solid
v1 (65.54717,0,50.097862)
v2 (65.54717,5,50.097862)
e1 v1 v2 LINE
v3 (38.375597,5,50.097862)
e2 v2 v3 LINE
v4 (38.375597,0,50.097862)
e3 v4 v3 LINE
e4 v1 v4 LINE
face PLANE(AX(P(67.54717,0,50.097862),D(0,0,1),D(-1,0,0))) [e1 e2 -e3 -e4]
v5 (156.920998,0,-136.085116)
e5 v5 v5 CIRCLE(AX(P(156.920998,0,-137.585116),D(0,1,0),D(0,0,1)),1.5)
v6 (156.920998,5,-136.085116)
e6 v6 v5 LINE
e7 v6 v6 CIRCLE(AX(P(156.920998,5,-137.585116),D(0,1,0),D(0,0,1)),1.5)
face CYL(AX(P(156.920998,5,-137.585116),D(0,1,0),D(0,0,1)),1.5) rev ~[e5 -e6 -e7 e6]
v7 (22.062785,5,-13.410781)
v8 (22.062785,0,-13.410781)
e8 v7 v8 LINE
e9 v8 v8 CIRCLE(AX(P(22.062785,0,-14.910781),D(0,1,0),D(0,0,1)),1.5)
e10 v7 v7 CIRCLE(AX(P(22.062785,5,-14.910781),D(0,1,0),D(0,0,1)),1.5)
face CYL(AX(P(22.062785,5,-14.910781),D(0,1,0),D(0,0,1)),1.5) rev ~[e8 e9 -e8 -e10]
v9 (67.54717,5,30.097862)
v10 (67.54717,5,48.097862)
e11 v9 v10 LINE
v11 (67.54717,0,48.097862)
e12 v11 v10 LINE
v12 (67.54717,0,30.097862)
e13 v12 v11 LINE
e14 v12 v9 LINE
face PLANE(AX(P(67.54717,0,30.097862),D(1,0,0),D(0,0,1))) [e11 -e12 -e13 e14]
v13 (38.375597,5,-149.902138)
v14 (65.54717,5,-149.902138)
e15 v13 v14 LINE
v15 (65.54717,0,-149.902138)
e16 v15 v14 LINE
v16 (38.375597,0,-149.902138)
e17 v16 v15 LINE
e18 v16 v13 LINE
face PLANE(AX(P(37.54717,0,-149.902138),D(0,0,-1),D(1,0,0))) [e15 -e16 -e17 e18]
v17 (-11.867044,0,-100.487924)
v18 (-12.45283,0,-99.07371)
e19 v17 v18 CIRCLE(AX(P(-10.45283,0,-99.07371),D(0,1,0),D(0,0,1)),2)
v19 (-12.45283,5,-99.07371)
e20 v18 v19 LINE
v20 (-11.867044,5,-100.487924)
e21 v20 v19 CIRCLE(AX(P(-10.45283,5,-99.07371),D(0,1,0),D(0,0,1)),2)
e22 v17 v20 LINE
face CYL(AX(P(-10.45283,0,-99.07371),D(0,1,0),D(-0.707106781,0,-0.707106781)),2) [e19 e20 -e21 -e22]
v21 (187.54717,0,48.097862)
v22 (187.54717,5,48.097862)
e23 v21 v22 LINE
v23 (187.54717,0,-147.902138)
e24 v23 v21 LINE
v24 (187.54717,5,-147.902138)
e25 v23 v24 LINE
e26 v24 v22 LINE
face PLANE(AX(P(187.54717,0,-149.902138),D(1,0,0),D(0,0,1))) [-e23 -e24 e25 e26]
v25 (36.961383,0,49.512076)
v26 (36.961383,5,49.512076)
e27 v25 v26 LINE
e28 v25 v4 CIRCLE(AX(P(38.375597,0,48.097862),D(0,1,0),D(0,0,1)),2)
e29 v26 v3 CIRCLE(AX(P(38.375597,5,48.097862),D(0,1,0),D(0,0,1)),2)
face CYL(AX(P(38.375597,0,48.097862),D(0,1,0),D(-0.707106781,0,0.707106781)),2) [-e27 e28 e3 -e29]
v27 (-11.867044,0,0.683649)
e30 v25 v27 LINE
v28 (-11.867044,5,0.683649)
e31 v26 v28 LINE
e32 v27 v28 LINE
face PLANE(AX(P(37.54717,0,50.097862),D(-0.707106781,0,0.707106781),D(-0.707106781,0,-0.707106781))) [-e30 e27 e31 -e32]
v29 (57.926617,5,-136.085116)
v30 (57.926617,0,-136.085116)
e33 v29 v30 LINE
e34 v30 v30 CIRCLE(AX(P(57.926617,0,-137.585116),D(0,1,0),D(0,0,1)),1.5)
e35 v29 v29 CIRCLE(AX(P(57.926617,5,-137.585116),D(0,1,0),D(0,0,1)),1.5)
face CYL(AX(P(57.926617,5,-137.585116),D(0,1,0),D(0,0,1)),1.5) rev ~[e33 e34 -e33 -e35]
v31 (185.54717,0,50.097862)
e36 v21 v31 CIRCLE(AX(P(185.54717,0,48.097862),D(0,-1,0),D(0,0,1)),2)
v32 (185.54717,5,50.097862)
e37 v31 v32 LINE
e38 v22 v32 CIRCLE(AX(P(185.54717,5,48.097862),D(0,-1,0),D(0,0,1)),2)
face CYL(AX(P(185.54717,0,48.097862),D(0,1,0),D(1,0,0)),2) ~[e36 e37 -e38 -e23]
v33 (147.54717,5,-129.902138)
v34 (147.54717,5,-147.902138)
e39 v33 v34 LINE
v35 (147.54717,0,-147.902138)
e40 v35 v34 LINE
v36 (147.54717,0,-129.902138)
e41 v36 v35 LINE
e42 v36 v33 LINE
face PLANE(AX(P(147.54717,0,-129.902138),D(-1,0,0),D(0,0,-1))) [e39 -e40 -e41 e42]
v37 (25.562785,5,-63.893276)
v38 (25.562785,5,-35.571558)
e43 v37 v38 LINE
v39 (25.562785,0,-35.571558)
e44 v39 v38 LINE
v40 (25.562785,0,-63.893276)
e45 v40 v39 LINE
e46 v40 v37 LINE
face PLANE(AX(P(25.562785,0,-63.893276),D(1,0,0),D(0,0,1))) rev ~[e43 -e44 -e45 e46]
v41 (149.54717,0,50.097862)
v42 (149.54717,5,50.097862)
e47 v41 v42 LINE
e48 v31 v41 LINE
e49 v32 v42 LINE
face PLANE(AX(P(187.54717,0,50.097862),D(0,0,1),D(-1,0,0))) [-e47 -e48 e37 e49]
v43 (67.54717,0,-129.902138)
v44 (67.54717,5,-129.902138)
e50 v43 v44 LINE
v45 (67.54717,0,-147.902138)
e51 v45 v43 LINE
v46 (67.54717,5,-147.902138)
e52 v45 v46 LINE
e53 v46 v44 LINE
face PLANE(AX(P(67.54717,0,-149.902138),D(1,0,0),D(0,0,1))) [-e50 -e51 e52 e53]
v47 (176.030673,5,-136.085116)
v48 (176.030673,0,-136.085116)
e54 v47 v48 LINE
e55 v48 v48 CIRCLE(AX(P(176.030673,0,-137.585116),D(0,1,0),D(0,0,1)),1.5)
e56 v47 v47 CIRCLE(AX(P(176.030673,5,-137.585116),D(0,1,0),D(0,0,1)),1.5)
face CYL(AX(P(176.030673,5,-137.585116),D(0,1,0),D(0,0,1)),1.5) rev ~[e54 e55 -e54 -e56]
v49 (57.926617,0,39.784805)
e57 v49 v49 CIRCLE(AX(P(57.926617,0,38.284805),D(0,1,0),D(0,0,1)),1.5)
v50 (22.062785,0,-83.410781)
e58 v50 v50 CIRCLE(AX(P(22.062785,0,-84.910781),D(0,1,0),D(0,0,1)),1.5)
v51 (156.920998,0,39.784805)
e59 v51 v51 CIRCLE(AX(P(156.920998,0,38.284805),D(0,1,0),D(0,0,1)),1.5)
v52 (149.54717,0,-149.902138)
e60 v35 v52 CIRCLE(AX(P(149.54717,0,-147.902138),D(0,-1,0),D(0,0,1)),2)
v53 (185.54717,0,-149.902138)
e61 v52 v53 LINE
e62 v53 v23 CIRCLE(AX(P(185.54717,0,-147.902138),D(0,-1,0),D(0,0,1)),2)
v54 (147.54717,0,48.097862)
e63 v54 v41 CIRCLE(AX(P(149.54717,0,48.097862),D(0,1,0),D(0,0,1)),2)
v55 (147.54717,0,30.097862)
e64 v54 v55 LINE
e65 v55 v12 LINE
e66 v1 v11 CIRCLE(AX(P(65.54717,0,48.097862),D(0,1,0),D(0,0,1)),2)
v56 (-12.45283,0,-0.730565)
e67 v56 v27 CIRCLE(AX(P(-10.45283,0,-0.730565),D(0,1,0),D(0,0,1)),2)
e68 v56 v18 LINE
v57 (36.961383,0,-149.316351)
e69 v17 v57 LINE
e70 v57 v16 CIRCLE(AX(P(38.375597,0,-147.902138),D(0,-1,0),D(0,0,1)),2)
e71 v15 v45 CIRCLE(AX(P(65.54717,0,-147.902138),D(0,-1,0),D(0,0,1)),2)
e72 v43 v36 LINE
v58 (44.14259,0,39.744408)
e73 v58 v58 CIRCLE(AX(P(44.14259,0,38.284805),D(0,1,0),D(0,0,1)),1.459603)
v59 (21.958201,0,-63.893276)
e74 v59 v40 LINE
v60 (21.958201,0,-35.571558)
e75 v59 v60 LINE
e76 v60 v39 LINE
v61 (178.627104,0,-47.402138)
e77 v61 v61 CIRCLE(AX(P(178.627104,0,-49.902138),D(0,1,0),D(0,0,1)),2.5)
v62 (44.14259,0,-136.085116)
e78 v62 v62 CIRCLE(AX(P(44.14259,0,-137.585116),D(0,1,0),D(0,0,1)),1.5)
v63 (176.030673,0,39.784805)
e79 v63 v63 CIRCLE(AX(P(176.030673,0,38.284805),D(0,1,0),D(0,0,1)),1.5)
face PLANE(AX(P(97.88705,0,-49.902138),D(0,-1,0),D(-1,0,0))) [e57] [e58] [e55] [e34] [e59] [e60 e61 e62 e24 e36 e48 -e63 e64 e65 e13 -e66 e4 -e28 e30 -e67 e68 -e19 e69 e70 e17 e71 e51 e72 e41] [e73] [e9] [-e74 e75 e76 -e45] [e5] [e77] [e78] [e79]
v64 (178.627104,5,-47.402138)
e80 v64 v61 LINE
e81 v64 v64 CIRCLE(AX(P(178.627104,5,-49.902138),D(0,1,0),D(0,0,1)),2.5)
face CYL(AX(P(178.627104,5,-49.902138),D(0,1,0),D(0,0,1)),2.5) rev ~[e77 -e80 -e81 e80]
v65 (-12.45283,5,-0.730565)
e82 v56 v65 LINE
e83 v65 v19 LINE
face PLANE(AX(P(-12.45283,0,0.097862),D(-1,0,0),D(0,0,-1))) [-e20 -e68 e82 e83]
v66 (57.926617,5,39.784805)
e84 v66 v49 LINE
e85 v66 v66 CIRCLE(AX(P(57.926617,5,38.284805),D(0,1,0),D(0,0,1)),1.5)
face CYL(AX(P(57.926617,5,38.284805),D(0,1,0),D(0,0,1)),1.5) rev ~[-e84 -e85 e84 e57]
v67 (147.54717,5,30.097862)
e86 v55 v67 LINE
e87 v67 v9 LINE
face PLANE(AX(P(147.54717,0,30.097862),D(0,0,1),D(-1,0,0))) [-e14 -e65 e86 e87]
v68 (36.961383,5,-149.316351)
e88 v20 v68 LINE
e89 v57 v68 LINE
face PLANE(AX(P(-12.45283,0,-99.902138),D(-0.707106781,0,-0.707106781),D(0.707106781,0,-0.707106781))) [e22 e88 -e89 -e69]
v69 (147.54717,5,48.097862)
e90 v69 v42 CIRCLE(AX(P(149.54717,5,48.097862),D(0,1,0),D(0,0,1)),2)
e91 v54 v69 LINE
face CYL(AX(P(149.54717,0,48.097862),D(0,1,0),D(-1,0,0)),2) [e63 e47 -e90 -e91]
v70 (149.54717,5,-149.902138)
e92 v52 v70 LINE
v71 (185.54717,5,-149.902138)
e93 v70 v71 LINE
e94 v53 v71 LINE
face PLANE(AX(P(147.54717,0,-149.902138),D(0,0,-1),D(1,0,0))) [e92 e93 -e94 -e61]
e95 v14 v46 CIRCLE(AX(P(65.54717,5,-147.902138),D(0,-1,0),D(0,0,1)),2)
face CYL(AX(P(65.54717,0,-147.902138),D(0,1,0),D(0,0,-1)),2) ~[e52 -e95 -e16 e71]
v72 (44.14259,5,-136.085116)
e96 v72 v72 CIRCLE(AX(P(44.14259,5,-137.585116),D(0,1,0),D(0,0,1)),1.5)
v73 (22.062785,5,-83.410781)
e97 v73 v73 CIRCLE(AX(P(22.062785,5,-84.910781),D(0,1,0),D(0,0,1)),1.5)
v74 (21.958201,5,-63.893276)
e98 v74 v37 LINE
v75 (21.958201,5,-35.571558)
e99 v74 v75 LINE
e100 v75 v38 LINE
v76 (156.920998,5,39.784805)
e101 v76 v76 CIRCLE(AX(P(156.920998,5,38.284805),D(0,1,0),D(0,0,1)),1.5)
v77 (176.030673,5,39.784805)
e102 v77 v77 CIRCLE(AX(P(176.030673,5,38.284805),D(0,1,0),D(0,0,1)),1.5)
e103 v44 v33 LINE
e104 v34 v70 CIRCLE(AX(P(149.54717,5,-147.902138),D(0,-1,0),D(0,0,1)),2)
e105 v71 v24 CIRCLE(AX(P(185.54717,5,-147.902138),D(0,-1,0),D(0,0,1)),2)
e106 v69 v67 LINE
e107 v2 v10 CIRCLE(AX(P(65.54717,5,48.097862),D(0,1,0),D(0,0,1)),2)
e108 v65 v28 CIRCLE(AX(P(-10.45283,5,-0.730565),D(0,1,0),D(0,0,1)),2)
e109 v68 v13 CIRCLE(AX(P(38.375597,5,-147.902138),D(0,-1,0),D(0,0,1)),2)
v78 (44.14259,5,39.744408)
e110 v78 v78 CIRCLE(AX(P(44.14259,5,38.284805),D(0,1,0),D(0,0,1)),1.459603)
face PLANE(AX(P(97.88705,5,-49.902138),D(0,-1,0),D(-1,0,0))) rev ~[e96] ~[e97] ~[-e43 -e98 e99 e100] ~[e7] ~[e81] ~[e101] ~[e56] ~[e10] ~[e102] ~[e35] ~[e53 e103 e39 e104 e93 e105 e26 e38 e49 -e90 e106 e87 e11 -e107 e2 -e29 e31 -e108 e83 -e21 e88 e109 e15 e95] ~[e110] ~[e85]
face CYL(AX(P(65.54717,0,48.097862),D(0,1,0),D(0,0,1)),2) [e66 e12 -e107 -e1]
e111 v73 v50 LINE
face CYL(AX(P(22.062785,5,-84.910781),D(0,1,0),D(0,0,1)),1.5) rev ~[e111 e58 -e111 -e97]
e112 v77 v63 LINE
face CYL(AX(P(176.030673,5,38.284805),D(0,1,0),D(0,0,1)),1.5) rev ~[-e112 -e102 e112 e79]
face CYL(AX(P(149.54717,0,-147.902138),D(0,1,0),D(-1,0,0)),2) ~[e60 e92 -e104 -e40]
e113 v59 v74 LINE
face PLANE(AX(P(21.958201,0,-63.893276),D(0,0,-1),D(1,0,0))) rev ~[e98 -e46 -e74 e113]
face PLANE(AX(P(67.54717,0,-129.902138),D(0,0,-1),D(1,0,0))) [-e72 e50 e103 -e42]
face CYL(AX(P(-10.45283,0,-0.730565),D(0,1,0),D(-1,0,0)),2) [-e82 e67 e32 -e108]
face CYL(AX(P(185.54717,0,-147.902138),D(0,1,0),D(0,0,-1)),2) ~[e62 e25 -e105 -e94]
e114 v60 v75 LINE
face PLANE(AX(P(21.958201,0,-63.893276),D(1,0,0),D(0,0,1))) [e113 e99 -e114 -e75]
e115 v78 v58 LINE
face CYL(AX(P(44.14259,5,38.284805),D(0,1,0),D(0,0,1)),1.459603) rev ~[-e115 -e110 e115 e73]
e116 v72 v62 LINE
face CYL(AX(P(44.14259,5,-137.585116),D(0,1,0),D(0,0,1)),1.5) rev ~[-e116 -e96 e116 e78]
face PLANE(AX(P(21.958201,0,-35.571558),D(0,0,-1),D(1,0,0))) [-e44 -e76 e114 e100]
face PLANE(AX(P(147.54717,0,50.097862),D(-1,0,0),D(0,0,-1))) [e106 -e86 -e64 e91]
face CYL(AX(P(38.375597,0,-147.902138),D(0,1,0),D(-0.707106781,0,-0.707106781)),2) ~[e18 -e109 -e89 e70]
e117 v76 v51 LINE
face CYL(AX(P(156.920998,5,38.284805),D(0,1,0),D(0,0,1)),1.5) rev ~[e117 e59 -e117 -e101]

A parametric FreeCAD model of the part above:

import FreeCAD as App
import Part
import Sketcher
from FreeCAD import Vector
Q = App.Units.Quantity


def edges_at(feature, points):
    """Names of the edges that pass closest to the given points."""
    edges = feature.Shape.Edges
    near = lambda p: min(range(len(edges)), key=lambda i: edges[i].distToShape(Part.Vertex(*p))[0])
    return sorted({f"Edge{near(p) + 1}" for p in points})

doc = App.newDocument("Part")
body = doc.addObject("PartDesign::Body", "Body")

sketch1 = doc.addObject("Sketcher::SketchObject", "Sketch")
body.addObject(sketch1)
sketch1.AttachmentSupport = (doc.XZ_Plane, [""])
sketch1.MapMode = "FlatFace"
sketch1.addGeometry([
    Part.LineSegment(Vector(37.54717, -149.902138, 0), Vector(-12.45283, -99.902138, 0)),
    Part.LineSegment(Vector(-12.45283, -99.902138, 0), Vector(-12.45283, 0.097862, 0)),
    Part.LineSegment(Vector(-12.45283, 0.097862, 0), Vector(37.54717, 50.097862, 0)),
    Part.LineSegment(Vector(37.54717, 50.097862, 0), Vector(67.54717, 50.097862, 0)),
    Part.LineSegment(Vector(67.54717, 50.097862, 0), Vector(67.54717, 30.097862, 0)),
    Part.LineSegment(Vector(67.54717, 30.097862, 0), Vector(147.54717, 30.097862, 0)),
    Part.LineSegment(Vector(147.54717, 30.097862, 0), Vector(147.54717, 50.097862, 0)),
    Part.LineSegment(Vector(147.54717, 50.097862, 0), Vector(187.54717, 50.097862, 0)),
    Part.LineSegment(Vector(187.54717, 50.097862, 0), Vector(187.54717, -149.902138, 0)),
    Part.LineSegment(Vector(187.54717, -149.902138, 0), Vector(147.54717, -149.902138, 0)),
    Part.LineSegment(Vector(147.54717, -149.902138, 0), Vector(147.54717, -129.902138, 0)),
    Part.LineSegment(Vector(147.54717, -129.902138, 0), Vector(67.54717, -129.902138, 0)),
    Part.LineSegment(Vector(67.54717, -129.902138, 0), Vector(67.54717, -149.902138, 0)),
    Part.LineSegment(Vector(67.54717, -149.902138, 0), Vector(37.54717, -149.902138, 0)),
], False)
sketch1.addConstraint([
    Sketcher.Constraint("Coincident", 0, 2, 1, 1),
    Sketcher.Constraint("Coincident", 1, 2, 2, 1),
    Sketcher.Constraint("Coincident", 2, 2, 3, 1),
    Sketcher.Constraint("Coincident", 3, 2, 4, 1),
    Sketcher.Constraint("Coincident", 4, 2, 5, 1),
    Sketcher.Constraint("Coincident", 5, 2, 6, 1),
    Sketcher.Constraint("Coincident", 6, 2, 7, 1),
    Sketcher.Constraint("Coincident", 7, 2, 8, 1),
    Sketcher.Constraint("Coincident", 8, 2, 9, 1),
    Sketcher.Constraint("Coincident", 9, 2, 10, 1),
    Sketcher.Constraint("Coincident", 10, 2, 11, 1),
    Sketcher.Constraint("Coincident", 11, 2, 12, 1),
    Sketcher.Constraint("Coincident", 12, 2, 13, 1),
    Sketcher.Constraint("Coincident", 13, 2, 0, 1),
    Sketcher.Constraint("Vertical", 1),
    Sketcher.Constraint("Horizontal", 3),
    Sketcher.Constraint("Vertical", 4),
    Sketcher.Constraint("Horizontal", 5),
    Sketcher.Constraint("Vertical", 6),
    Sketcher.Constraint("Horizontal", 7),
    Sketcher.Constraint("Vertical", 8),
    Sketcher.Constraint("Horizontal", 9),
    Sketcher.Constraint("Vertical", 10),
    Sketcher.Constraint("Horizontal", 11),
    Sketcher.Constraint("Vertical", 12),
    Sketcher.Constraint("Horizontal", 13),
    Sketcher.Constraint("Perpendicular", 0, 2),
    Sketcher.Constraint("Horizontal", 3, 2, 6, 2),
    Sketcher.Constraint("Horizontal", 9, 2, 12, 2),
    Sketcher.Constraint("Vertical", 6, 2, 9, 2),
    Sketcher.Constraint("Vertical", 4, 2, 11, 2),
    Sketcher.Constraint("Vertical", 2, 2, 13, 2),
    Sketcher.Constraint("Equal", 6, 10),
    Sketcher.Constraint("Equal", 0, 2),
    Sketcher.Constraint("DistanceX", 3, 1, 3, 2, Q("30 mm")),
    Sketcher.Constraint("DistanceX", 5, 1, 5, 2, Q("80 mm")),
    Sketcher.Constraint("DistanceX", 7, 1, 7, 2, Q("40 mm")),
    Sketcher.Constraint("DistanceY", 1, 1, 1, 2, Q("100 mm")),
    Sketcher.Constraint("DistanceY", 4, 2, 4, 1, Q("20 mm")),
    Sketcher.Constraint("DistanceY", 8, 2, 8, 1, Q("200 mm")),
    Sketcher.Constraint("DistanceX", 0, 2, -1, 1, Q("12.45283 mm")),
    Sketcher.Constraint("DistanceY", 0, 2, -1, 1, Q("99.902138 mm")),
])
pad1 = doc.addObject("PartDesign::Pad", "Pad")
body.addObject(pad1)
pad1.Profile = sketch1
pad1.Length = 5
pad1.Reversed = True

sketch2 = doc.addObject("Sketcher::SketchObject", "Sketch001")
body.addObject(sketch2)
sketch2.AttachmentSupport = (doc.XZ_Plane, [""])
sketch2.MapMode = "FlatFace"
sketch2.AttachmentOffset = App.Placement(Vector(0, 0, -5), App.Rotation())
sketch2.addGeometry(Part.Circle(Vector(178.627104, -49.902138, 0), Vector(0, 0, 1), 2.5), False)
sketch2.addConstraint([
    Sketcher.Constraint("Diameter", 0, Q("5 mm")),
    Sketcher.Constraint("DistanceX", -1, 1, 0, 3, Q("178.627104 mm")),
    Sketcher.Constraint("DistanceY", 0, 3, -1, 1, Q("49.902138 mm")),
])
pocket1 = doc.addObject("PartDesign::Pocket", "Pocket")
body.addObject(pocket1)
pocket1.Profile = sketch2
pocket1.Length = 10
pocket1.Reversed = True
doc.recompute()

fillet = doc.addObject("PartDesign::Fillet", "Fillet")
body.addObject(fillet)
fillet.Base = (pocket1, edges_at(pocket1, [
    (-12.453, 2.5, -99.902),
    (37.547, 2.5, -149.902),
    (67.547, 2.5, -149.902),
    (147.547, 2.5, -149.902),
    (187.547, 2.5, -149.902),
    (187.547, 2.5, 50.098),
    (147.547, 2.5, 50.098),
    (67.547, 2.5, 50.098),
    (37.547, 2.5, 50.098),
    (-12.453, 2.5, 0.098),
]))
fillet.Radius = 2

sketch3 = doc.addObject("Sketcher::SketchObject", "Sketch002")
body.addObject(sketch3)
sketch3.AttachmentSupport = (doc.XZ_Plane, [""])
sketch3.MapMode = "FlatFace"
sketch3.AttachmentOffset = App.Placement(Vector(0, 0, -5), App.Rotation())
sketch3.addGeometry([
    Part.Circle(Vector(22.062785, -14.910781, 0), Vector(0, 0, 1), 1.5),
    Part.Circle(Vector(22.062785, -84.910781, 0), Vector(0, 0, 1), 1.5),
], False)
sketch3.addConstraint([
    Sketcher.Constraint("Equal", 0, 1),
    Sketcher.Constraint("Vertical", 0, 3, 1, 3),
    Sketcher.Constraint("Diameter", 0, Q("3 mm")),
    Sketcher.Constraint("DistanceY", 1, 3, 0, 3, Q("70 mm")),
    Sketcher.Constraint("DistanceY", 0, 3, -1, 1, Q("14.910781 mm")),
    Sketcher.Constraint("DistanceX", -1, 1, 0, 3, Q("22.062785 mm")),
])
pocket2 = doc.addObject("PartDesign::Pocket", "Pocket001")
body.addObject(pocket2)
pocket2.Profile = sketch3
pocket2.Length = 10
pocket2.Reversed = True

sketch4 = doc.addObject("Sketcher::SketchObject", "Sketch003")
body.addObject(sketch4)
sketch4.AttachmentSupport = (doc.XZ_Plane, [""])
sketch4.MapMode = "FlatFace"
sketch4.addGeometry([
    Part.LineSegment(Vector(21.958201, -35.571558, 0), Vector(21.958201, -63.893276, 0)),
    Part.LineSegment(Vector(21.958201, -63.893276, 0), Vector(25.562785, -63.893276, 0)),
    Part.LineSegment(Vector(25.562785, -63.893276, 0), Vector(25.562785, -35.571558, 0)),
    Part.LineSegment(Vector(25.562785, -35.571558, 0), Vector(21.958201, -35.571558, 0)),
], False)
sketch4.addConstraint([
    Sketcher.Constraint("Coincident", 0, 2, 1, 1),
    Sketcher.Constraint("Coincident", 1, 2, 2, 1),
    Sketcher.Constraint("Coincident", 2, 2, 3, 1),
    Sketcher.Constraint("Coincident", 3, 2, 0, 1),
    Sketcher.Constraint("Vertical", 0),
    Sketcher.Constraint("Horizontal", 1),
    Sketcher.Constraint("Vertical", 2),
    Sketcher.Constraint("Horizontal", 3),
    Sketcher.Constraint("DistanceX", -1, 1, 0, 2, Q("21.958201 mm")),
    Sketcher.Constraint("DistanceX", 1, 1, 1, 2, Q("3.604585 mm")),
    Sketcher.Constraint("DistanceY", 0, 2, 0, 1, Q("28.321718 mm")),
    Sketcher.Constraint("DistanceY", 2, 2, -1, 1, Q("35.571558 mm")),
])
pocket3 = doc.addObject("PartDesign::Pocket", "Pocket002")
body.addObject(pocket3)
pocket3.Profile = sketch4
pocket3.Length = 10

sketch5 = doc.addObject("Sketcher::SketchObject", "Sketch004")
body.addObject(sketch5)
sketch5.AttachmentSupport = (doc.XZ_Plane, [""])
sketch5.MapMode = "FlatFace"
sketch5.AttachmentOffset = App.Placement(Vector(0, 0, -5), App.Rotation())
sketch5.addGeometry([
    Part.Circle(Vector(44.14259, -137.585116, 0), Vector(0, 0, 1), 1.5),
    Part.Circle(Vector(57.926617, -137.585116, 0), Vector(0, 0, 1), 1.5),
    Part.Circle(Vector(44.14259, 38.284805, 0), Vector(0, 0, 1), 1.459603),
    Part.Circle(Vector(57.926617, 38.284805, 0), Vector(0, 0, 1), 1.5),
    Part.Circle(Vector(156.920998, 38.284805, 0), Vector(0, 0, 1), 1.5),
    Part.Circle(Vector(176.030673, 38.284805, 0), Vector(0, 0, 1), 1.5),
    Part.Circle(Vector(156.920998, -137.585116, 0), Vector(0, 0, 1), 1.5),
    Part.Circle(Vector(176.030673, -137.585116, 0), Vector(0, 0, 1), 1.5),
], False)
sketch5.addConstraint([
    Sketcher.Constraint("Equal", 0, 1),
    Sketcher.Constraint("Equal", 1, 3),
    Sketcher.Constraint("Equal", 3, 4),
    Sketcher.Constraint("Equal", 4, 5),
    Sketcher.Constraint("Equal", 5, 6),
    Sketcher.Constraint("Equal", 6, 7),
    Sketcher.Constraint("Horizontal", 0, 3, 1, 3),
    Sketcher.Constraint("Horizontal", 2, 3, 3, 3),
    Sketcher.Constraint("Horizontal", 3, 3, 4, 3),
    Sketcher.Constraint("Horizontal", 4, 3, 5, 3),
    Sketcher.Constraint("Horizontal", 1, 3, 6, 3),
    Sketcher.Constraint("Horizontal", 6, 3, 7, 3),
    Sketcher.Constraint("Vertical", 0, 3, 2, 3),
    Sketcher.Constraint("Vertical", 1, 3, 3, 3),
    Sketcher.Constraint("Vertical", 4, 3, 6, 3),
    Sketcher.Constraint("Vertical", 5, 3, 7, 3),
    Sketcher.Constraint("Diameter", 0, Q("3 mm")),
    Sketcher.Constraint("Diameter", 2, Q("2.919206 mm")),
    Sketcher.Constraint("DistanceX", -1, 1, 0, 3, Q("44.14259 mm")),
    Sketcher.Constraint("DistanceY", 0, 3, 2, 3, Q("175.869921 mm")),
    Sketcher.Constraint("DistanceX", 3, 3, 4, 3, Q("98.99438 mm")),
    Sketcher.Constraint("DistanceX", 2, 3, 4, 3, Q("112.778408 mm")),
    Sketcher.Constraint("DistanceY", 0, 3, -1, 1, Q("137.585116 mm")),
    Sketcher.Constraint("DistanceX", -1, 1, 5, 3, Q("176.030673 mm")),
])
pocket4 = doc.addObject("PartDesign::Pocket", "Pocket003")
body.addObject(pocket4)
pocket4.Profile = sketch5
pocket4.Length = 10
pocket4.Reversed = True

doc.recompute()
